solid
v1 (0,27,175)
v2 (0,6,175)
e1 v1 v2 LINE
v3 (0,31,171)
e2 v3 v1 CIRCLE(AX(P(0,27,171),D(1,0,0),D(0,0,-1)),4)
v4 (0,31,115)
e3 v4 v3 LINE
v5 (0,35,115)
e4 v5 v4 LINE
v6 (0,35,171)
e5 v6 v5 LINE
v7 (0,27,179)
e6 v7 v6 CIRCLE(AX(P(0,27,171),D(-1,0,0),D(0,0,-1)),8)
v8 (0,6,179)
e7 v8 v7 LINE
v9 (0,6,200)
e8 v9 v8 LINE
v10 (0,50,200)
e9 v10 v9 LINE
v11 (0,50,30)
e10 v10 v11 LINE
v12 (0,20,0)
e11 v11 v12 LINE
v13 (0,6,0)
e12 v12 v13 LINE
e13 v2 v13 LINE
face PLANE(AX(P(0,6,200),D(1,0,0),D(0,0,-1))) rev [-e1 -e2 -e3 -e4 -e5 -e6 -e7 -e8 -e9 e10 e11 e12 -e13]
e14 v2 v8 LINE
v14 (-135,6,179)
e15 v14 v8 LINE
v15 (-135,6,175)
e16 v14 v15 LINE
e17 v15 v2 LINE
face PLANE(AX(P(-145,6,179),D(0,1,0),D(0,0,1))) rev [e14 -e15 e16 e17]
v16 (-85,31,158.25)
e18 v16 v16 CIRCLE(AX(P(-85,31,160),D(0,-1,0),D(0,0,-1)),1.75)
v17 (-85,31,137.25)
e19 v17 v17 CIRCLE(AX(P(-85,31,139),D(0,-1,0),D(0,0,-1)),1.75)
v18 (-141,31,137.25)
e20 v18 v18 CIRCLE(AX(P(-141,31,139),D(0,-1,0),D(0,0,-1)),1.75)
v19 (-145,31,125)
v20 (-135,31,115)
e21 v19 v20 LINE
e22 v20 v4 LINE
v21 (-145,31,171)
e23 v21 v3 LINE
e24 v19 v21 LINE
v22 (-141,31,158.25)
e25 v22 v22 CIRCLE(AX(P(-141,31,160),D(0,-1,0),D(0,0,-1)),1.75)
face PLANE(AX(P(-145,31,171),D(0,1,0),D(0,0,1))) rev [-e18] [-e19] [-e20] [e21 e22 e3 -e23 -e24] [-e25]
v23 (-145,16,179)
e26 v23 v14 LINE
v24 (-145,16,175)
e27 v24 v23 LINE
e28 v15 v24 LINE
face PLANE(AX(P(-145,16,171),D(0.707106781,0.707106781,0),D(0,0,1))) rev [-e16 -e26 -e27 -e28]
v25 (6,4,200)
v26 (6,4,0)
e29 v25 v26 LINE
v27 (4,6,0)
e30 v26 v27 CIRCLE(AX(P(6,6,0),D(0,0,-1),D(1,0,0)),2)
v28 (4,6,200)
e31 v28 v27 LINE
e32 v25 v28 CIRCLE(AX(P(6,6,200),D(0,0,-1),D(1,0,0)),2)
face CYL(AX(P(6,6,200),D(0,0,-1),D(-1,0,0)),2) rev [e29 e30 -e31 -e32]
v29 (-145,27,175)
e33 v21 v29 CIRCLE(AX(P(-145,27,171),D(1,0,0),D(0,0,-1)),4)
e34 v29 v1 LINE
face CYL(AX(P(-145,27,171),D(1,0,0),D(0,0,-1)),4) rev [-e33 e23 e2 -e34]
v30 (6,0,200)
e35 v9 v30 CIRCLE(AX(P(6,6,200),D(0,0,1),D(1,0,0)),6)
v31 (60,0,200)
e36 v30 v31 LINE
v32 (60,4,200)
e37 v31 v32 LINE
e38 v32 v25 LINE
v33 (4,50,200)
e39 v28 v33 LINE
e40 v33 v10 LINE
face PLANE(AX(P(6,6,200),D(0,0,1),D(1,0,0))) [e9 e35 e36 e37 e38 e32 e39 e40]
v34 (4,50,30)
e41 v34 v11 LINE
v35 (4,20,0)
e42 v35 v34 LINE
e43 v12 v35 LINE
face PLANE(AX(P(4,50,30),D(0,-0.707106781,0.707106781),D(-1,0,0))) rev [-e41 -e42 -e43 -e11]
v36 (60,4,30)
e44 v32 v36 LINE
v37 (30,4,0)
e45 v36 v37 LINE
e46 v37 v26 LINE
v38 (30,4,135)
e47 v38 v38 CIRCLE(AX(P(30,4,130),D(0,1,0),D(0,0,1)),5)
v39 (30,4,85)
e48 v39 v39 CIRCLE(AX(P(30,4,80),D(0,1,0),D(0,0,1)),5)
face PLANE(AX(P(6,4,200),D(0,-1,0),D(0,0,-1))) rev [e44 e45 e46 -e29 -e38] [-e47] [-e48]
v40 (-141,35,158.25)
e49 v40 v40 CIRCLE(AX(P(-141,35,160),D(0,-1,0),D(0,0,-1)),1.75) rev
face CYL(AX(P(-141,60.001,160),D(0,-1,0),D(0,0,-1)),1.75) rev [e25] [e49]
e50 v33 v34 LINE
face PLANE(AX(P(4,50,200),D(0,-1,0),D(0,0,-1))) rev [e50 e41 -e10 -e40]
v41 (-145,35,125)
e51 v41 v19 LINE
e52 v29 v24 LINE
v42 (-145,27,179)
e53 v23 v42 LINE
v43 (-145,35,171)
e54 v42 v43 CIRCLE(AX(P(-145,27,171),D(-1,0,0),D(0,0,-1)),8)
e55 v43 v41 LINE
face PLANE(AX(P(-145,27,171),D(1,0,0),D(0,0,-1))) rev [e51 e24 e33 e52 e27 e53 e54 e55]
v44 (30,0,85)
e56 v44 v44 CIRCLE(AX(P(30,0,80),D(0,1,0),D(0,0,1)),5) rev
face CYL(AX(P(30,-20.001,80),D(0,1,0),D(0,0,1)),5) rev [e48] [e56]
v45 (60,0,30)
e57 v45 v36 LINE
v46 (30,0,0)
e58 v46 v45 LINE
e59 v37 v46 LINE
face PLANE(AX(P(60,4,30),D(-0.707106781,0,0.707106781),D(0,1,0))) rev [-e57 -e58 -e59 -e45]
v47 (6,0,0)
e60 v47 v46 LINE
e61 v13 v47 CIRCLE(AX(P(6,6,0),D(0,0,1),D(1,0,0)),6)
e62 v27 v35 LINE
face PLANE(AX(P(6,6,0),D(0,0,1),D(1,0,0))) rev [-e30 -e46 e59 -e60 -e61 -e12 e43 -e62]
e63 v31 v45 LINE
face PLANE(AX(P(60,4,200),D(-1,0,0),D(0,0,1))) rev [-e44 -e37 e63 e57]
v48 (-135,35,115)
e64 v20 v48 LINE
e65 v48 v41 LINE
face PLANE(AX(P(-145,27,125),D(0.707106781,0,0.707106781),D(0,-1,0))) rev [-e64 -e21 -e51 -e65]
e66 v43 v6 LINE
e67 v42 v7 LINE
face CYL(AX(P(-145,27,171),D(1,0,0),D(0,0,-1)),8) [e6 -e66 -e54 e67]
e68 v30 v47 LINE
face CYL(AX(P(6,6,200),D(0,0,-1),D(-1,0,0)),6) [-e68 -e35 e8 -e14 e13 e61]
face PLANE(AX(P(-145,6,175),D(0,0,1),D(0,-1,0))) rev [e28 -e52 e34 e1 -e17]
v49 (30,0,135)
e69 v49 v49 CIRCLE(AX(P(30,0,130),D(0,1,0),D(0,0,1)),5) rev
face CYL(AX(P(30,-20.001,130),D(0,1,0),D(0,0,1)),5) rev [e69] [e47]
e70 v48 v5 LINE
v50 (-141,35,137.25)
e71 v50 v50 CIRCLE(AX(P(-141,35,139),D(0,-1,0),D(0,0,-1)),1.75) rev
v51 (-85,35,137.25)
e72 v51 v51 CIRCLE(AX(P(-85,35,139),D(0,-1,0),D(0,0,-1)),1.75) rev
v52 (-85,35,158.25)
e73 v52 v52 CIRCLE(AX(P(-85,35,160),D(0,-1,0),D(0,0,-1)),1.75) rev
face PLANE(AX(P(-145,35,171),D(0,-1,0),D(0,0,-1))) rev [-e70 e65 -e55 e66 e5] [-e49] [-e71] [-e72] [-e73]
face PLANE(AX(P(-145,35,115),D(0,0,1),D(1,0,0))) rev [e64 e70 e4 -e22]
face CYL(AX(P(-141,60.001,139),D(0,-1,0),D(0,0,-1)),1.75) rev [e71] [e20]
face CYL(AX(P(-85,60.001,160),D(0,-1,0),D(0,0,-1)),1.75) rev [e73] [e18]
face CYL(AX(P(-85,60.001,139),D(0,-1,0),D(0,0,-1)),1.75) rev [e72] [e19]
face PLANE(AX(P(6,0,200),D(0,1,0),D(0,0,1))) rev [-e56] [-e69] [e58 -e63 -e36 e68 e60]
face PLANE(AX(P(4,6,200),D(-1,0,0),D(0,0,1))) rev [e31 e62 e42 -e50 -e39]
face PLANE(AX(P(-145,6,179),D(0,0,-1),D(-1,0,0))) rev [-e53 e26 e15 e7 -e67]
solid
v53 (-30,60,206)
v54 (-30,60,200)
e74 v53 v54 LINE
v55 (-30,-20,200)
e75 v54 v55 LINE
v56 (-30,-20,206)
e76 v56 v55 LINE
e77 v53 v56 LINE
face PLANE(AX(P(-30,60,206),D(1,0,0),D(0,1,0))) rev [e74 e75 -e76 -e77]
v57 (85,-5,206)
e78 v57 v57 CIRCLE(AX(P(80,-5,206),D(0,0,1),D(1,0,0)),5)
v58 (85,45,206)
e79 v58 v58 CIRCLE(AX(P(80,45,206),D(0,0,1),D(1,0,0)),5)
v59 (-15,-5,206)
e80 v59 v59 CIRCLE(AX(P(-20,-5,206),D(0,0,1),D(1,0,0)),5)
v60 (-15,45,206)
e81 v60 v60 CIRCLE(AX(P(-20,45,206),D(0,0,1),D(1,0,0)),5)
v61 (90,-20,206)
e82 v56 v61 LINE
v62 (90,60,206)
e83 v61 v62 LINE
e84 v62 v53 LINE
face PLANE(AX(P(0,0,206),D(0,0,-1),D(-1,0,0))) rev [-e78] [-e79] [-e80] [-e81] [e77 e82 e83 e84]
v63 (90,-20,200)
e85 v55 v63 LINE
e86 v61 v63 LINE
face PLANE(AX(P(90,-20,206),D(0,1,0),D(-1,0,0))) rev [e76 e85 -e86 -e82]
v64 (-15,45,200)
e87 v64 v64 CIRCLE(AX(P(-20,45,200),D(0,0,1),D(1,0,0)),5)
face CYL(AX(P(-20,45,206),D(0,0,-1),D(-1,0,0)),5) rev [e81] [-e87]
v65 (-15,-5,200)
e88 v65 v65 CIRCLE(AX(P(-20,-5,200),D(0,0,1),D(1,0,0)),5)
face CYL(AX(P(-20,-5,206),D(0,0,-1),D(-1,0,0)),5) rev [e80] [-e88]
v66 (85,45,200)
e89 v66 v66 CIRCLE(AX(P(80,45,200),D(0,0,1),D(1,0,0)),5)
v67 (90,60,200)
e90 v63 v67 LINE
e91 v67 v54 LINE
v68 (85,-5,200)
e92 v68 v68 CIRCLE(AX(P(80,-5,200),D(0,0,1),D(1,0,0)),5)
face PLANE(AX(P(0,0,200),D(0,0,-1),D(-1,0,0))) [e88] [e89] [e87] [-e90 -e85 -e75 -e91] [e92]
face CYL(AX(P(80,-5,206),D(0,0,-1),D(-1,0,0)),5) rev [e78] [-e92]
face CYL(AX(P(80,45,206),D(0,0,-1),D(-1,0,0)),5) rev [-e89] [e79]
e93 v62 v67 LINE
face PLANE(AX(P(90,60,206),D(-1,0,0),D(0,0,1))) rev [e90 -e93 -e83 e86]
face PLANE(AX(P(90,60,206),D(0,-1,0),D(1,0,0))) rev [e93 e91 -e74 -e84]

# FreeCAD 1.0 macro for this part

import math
import FreeCAD as App
import Part
import Sketcher

V = App.Vector
Q = App.Units.Quantity


def edges_at(feature, points):
    """Names of the edges that pass closest to the given points."""
    edges = feature.Shape.Edges
    near = lambda p: min(range(len(edges)), key=lambda i: edges[i].distToShape(Part.Vertex(*p))[0])
    return sorted({f"Edge{near(p) + 1}" for p in points})


def add_polygon(sketch, points):
    """Adds a closed chain of lines whose ends are joined by coincident constraints."""
    first, n = sketch.GeometryCount, len(points)
    for a, b in zip(points, points[1:] + points[:1]):
        sketch.addGeometry(Part.LineSegment(App.Vector(*a, 0), App.Vector(*b, 0)), False)
    for i in range(n):
        sketch.addConstraint(Sketcher.Constraint("Coincident", first + i, 2, first + (i + 1) % n, 1))

doc = App.newDocument("Part")
body = doc.addObject("PartDesign::Body", "Body")

# Sketch on XY plane
sketch1 = body.newObject("Sketcher::SketchObject", "Sketch")
sketch1.AttachmentSupport = (doc.getObject("XY_Plane"), [""])
sketch1.MapMode = "FlatFace"
sketch1.addGeometry([
    Part.LineSegment(V(0, 50, 0), V(0, 6, 0)),  # 0
    Part.ArcOfCircle(Part.Circle(V(6, 6, 0), V(0, 0, 1), 6), math.radians(180), math.radians(270)),  # 1
    Part.LineSegment(V(6, 0, 0), V(60, 0, 0)),  # 2
    Part.LineSegment(V(60, 0, 0), V(60, 4, 0)),  # 3
    Part.LineSegment(V(60, 4, 0), V(6, 4, 0)),  # 4
    Part.ArcOfCircle(Part.Circle(V(6, 6, 0), V(0, 0, 1), 2), math.radians(-180), math.radians(-90)),  # 5
    Part.LineSegment(V(4, 6, 0), V(4, 50, 0)),  # 6
    Part.LineSegment(V(4, 50, 0), V(0, 50, 0)),  # 7
], False)
sketch1.addConstraint([
    Sketcher.Constraint("Tangent", 0, 2, 1, 1),
    Sketcher.Constraint("Tangent", 1, 2, 2, 1),
    Sketcher.Constraint("Coincident", 2, 2, 3, 1),
    Sketcher.Constraint("Coincident", 3, 2, 4, 1),
    Sketcher.Constraint("Tangent", 4, 2, 5, 2),
    Sketcher.Constraint("Tangent", 5, 1, 6, 1),
    Sketcher.Constraint("Coincident", 6, 2, 7, 1),
    Sketcher.Constraint("Coincident", 7, 2, 0, 1),
    Sketcher.Constraint("Vertical", 0),
    Sketcher.Constraint("Horizontal", 2),
    Sketcher.Constraint("Vertical", 3),
    Sketcher.Constraint("Horizontal", 4),
    Sketcher.Constraint("Vertical", 6),
    Sketcher.Constraint("Horizontal", 7),
    Sketcher.Constraint("Coincident", 5, 3, 1, 3),
    Sketcher.Constraint("PointOnObject", 0, 2, -2),
    Sketcher.Constraint("PointOnObject", 1, 2, -1),
    Sketcher.Constraint("Radius", 1, Q("6 mm")),
    Sketcher.Constraint("Radius", 5, Q("2 mm")),
    Sketcher.Constraint("DistanceX", 2, 1, 2, 2, Q("54 mm")),
    Sketcher.Constraint("DistanceY", 0, 2, 0, 1, Q("44 mm")),
])
pad1 = body.newObject("PartDesign::Pad", "Pad")
pad1.Profile = sketch1
pad1.Length = 200
doc.recompute()

chamfer = body.newObject("PartDesign::Chamfer", "Chamfer")
chamfer.Base = (pad1, edges_at(pad1, [(2, 50, 0), (60, 2, 0)]))
chamfer.Size = 30

# Sketch on XZ plane
sketch2 = body.newObject("Sketcher::SketchObject", "Sketch001")
sketch2.AttachmentSupport = (doc.getObject("XZ_Plane"), [""])
sketch2.MapMode = "FlatFace"
sketch2.AttachmentOffset = App.Placement(V(0, 0, -4), App.Rotation())
sketch2.addGeometry([
    Part.Circle(V(30, 130, 0), V(0, 0, 1), 5),
    Part.Circle(V(30, 80, 0), V(0, 0, 1), 5),
], False)
sketch2.addConstraint([
    Sketcher.Constraint("Equal", 0, 1),
    Sketcher.Constraint("Vertical", 0, 3, 1, 3),
    Sketcher.Constraint("Diameter", 0, Q("10 mm")),
    Sketcher.Constraint("DistanceX", -1, 1, 0, 3, Q("30 mm")),
    Sketcher.Constraint("DistanceY", -1, 1, 0, 3, Q("130 mm")),
    Sketcher.Constraint("DistanceY", -1, 1, 1, 3, Q("80 mm")),
])
pocket1 = body.newObject("PartDesign::Pocket", "Pocket")
pocket1.Profile = sketch2
pocket1.Length = 4
pocket1.Reversed = True

# Sketch on YZ plane
sketch3 = body.newObject("Sketcher::SketchObject", "Sketch002")
sketch3.AttachmentSupport = (doc.getObject("YZ_Plane"), [""])
sketch3.MapMode = "FlatFace"
sketch3.addGeometry([
    Part.LineSegment(V(6, 175, 0), V(6, 179, 0)),  # 0
    Part.LineSegment(V(6, 179, 0), V(27, 179, 0)),  # 1
    Part.ArcOfCircle(Part.Circle(V(27, 171, 0), V(0, 0, 1), 8), math.radians(0), math.radians(90)),  # 2
    Part.LineSegment(V(35, 171, 0), V(35, 115, 0)),  # 3
    Part.LineSegment(V(35, 115, 0), V(31, 115, 0)),  # 4
    Part.LineSegment(V(31, 115, 0), V(31, 171, 0)),  # 5
    Part.ArcOfCircle(Part.Circle(V(27, 171, 0), V(0, 0, 1), 4), math.radians(0), math.radians(90)),  # 6
    Part.LineSegment(V(27, 175, 0), V(6, 175, 0)),  # 7
], False)
sketch3.addConstraint([
    Sketcher.Constraint("Coincident", 0, 2, 1, 1),
    Sketcher.Constraint("Tangent", 1, 2, 2, 2),
    Sketcher.Constraint("Tangent", 2, 1, 3, 1),
    Sketcher.Constraint("Coincident", 3, 2, 4, 1),
    Sketcher.Constraint("Coincident", 4, 2, 5, 1),
    Sketcher.Constraint("Tangent", 5, 2, 6, 1),
    Sketcher.Constraint("Tangent", 6, 2, 7, 1),
    Sketcher.Constraint("Coincident", 7, 2, 0, 1),
    Sketcher.Constraint("Vertical", 0),
    Sketcher.Constraint("Horizontal", 1),
    Sketcher.Constraint("Vertical", 3),
    Sketcher.Constraint("Horizontal", 4),
    Sketcher.Constraint("Vertical", 5),
    Sketcher.Constraint("Horizontal", 7),
    Sketcher.Constraint("Coincident", 6, 3, 2, 3),
    Sketcher.Constraint("Radius", 2, Q("8 mm")),
    Sketcher.Constraint("Radius", 6, Q("4 mm")),
    Sketcher.Constraint("DistanceX", 1, 1, 1, 2, Q("21 mm")),
    Sketcher.Constraint("DistanceY", 3, 2, 3, 1, Q("56 mm")),
    Sketcher.Constraint("DistanceX", -1, 1, 2, 3, Q("27 mm")),
    Sketcher.Constraint("DistanceY", -1, 1, 2, 3, Q("171 mm")),
])
pad2 = body.newObject("PartDesign::Pad", "Pad001")
pad2.Profile = sketch3
pad2.Length = 145
pad2.Reversed = True
doc.recompute()

chamfer2 = body.newObject("PartDesign::Chamfer", "Chamfer001")
chamfer2.Base = (pad2, edges_at(pad2, [(-145, 6, 177), (-145, 33, 115)]))
chamfer2.Size = 10

# Sketch on XZ plane
sketch4 = body.newObject("Sketcher::SketchObject", "Sketch003")
sketch4.AttachmentSupport = (doc.getObject("XZ_Plane"), [""])
sketch4.MapMode = "FlatFace"
sketch4.AttachmentOffset = App.Placement(V(0, 0, -31), App.Rotation())
sketch4.addGeometry([
    Part.Circle(V(-141, 160, 0), V(0, 0, 1), 1.8),
    Part.Circle(V(-141, 139, 0), V(0, 0, 1), 1.8),
    Part.Circle(V(-85, 139, 0), V(0, 0, 1), 1.8),
    Part.Circle(V(-85, 160, 0), V(0, 0, 1), 1.8),
], False)
sketch4.addConstraint([
    Sketcher.Constraint("Equal", 0, 1),
    Sketcher.Constraint("Equal", 1, 2),
    Sketcher.Constraint("Equal", 2, 3),
    Sketcher.Constraint("Horizontal", 1, 3, 2, 3),
    Sketcher.Constraint("Horizontal", 0, 3, 3, 3),
    Sketcher.Constraint("Vertical", 0, 3, 1, 3),
    Sketcher.Constraint("Vertical", 2, 3, 3, 3),
    Sketcher.Constraint("Diameter", 0, Q("3.5 mm")),
    Sketcher.Constraint("DistanceX", 0, 3, -1, 1, Q("141 mm")),
    Sketcher.Constraint("DistanceY", -1, 1, 0, 3, Q("160 mm")),
    Sketcher.Constraint("DistanceY", -1, 1, 1, 3, Q("139 mm")),
    Sketcher.Constraint("DistanceX", 2, 3, -1, 1, Q("85 mm")),
])
pocket2 = body.newObject("PartDesign::Pocket", "Pocket001")
pocket2.Profile = sketch4
pocket2.Length = 4
body2 = doc.addObject("PartDesign::Body", "Body001")

# Sketch on XY plane
sketch5 = body2.newObject("Sketcher::SketchObject", "Sketch004")
sketch5.AttachmentSupport = (doc.getObject("XY_Plane001"), [""])
sketch5.MapMode = "FlatFace"
sketch5.AttachmentOffset = App.Placement(V(0, 0, 200), App.Rotation())
add_polygon(sketch5, [(-30, 60), (-30, -20), (90, -20), (90, 60)])  # lines 0-3
sketch5.addGeometry(Part.Circle(V(-20, -5, 0), V(0, 0, 1), 5), False)  # 4
sketch5.addGeometry(Part.Circle(V(80, -5, 0), V(0, 0, 1), 5), False)  # 5
sketch5.addGeometry(Part.Circle(V(-20, 45, 0), V(0, 0, 1), 5), False)  # 6
sketch5.addGeometry(Part.Circle(V(80, 45, 0), V(0, 0, 1), 5), False)  # 7
sketch5.addConstraint([
    Sketcher.Constraint("Vertical", 0),
    Sketcher.Constraint("Horizontal", 1),
    Sketcher.Constraint("Vertical", 2),
    Sketcher.Constraint("Horizontal", 3),
    Sketcher.Constraint("Equal", 4, 5),
    Sketcher.Constraint("Equal", 5, 6),
    Sketcher.Constraint("Equal", 6, 7),
    Sketcher.Constraint("Horizontal", 4, 3, 5, 3),
    Sketcher.Constraint("Horizontal", 6, 3, 7, 3),
    Sketcher.Constraint("Vertical", 4, 3, 6, 3),
    Sketcher.Constraint("Vertical", 5, 3, 7, 3),
    Sketcher.Constraint("Diameter", 4, Q("10 mm")),
    Sketcher.Constraint("DistanceX", 1, 1, 1, 2, Q("120 mm")),
    Sketcher.Constraint("DistanceY", 0, 2, 0, 1, Q("80 mm")),
    Sketcher.Constraint("DistanceX", 4, 3, -1, 1, Q("20 mm")),
    Sketcher.Constraint("DistanceY", 4, 3, -1, 1, Q("5 mm")),
    Sketcher.Constraint("DistanceX", -1, 1, 5, 3, Q("80 mm")),
    Sketcher.Constraint("DistanceY", -1, 1, 6, 3, Q("45 mm")),
    Sketcher.Constraint("DistanceX", 0, 2, -1, 1, Q("30 mm")),
    Sketcher.Constraint("DistanceY", 0, 2, -1, 1, Q("20 mm")),
])
pad3 = body2.newObject("PartDesign::Pad", "Pad002")
pad3.Profile = sketch5
pad3.Length = 6

doc.recompute()
